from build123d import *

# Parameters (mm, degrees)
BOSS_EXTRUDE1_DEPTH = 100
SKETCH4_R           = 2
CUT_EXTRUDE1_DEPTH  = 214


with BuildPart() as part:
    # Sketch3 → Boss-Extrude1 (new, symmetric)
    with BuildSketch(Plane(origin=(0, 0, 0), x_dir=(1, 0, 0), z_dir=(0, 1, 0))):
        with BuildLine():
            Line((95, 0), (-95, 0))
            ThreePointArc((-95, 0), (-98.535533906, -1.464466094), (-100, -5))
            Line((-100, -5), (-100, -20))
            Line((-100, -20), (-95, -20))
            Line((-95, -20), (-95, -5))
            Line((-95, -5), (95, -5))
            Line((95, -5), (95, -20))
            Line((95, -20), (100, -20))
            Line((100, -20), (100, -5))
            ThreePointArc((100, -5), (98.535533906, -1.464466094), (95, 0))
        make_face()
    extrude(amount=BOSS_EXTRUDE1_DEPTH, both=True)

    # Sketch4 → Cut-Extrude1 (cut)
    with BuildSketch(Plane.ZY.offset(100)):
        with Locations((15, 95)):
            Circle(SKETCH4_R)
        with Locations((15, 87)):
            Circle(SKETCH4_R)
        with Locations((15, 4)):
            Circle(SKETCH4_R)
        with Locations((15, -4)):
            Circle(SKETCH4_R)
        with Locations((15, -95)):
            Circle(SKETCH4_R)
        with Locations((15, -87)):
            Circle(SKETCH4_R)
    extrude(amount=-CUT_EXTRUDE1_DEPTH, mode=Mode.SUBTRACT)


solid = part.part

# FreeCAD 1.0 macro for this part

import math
import FreeCAD as App
import Part
import Sketcher

doc = App.newDocument("Part")
body = doc.addObject("PartDesign::Body", "Body")

sketch1 = doc.addObject("Sketcher::SketchObject", "Sketch")
body.addObject(sketch1)
sketch1.AttachmentSupport = (doc.XZ_Plane, [""])
sketch1.MapMode = "FlatFace"
sketch1.addGeometry(Part.LineSegment(App.Vector(95, 0, 0), App.Vector(-95, 0, 0)), False)
sketch1.addGeometry(Part.ArcOfCircle(Part.Circle(App.Vector(-95, 5, 0), App.Vector(0, 0, 1), 5), math.radians(180), math.radians(270)), False)
sketch1.addGeometry(Part.LineSegment(App.Vector(-100, 5, 0), App.Vector(-100, 20, 0)), False)
sketch1.addGeometry(Part.LineSegment(App.Vector(-100, 20, 0), App.Vector(-95, 20, 0)), False)
sketch1.addGeometry(Part.LineSegment(App.Vector(-95, 20, 0), App.Vector(-95, 5, 0)), False)
sketch1.addGeometry(Part.LineSegment(App.Vector(-95, 5, 0), App.Vector(95, 5, 0)), False)
sketch1.addGeometry(Part.LineSegment(App.Vector(95, 5, 0), App.Vector(95, 20, 0)), False)
sketch1.addGeometry(Part.LineSegment(App.Vector(95, 20, 0), App.Vector(100, 20, 0)), False)
sketch1.addGeometry(Part.LineSegment(App.Vector(100, 20, 0), App.Vector(100, 5, 0)), False)
sketch1.addGeometry(Part.ArcOfCircle(Part.Circle(App.Vector(95, 5, 0), App.Vector(0, 0, 1), 5), math.radians(-90), math.radians(0)), False)
sketch1.addConstraint(Sketcher.Constraint("Tangent", 0, 2, 1, 2))
sketch1.addConstraint(Sketcher.Constraint("Tangent", 1, 1, 2, 1))
sketch1.addConstraint(Sketcher.Constraint("Coincident", 2, 2, 3, 1))
sketch1.addConstraint(Sketcher.Constraint("Coincident", 3, 2, 4, 1))
sketch1.addConstraint(Sketcher.Constraint("Coincident", 4, 2, 5, 1))
sketch1.addConstraint(Sketcher.Constraint("Coincident", 5, 2, 6, 1))
sketch1.addConstraint(Sketcher.Constraint("Coincident", 6, 2, 7, 1))
sketch1.addConstraint(Sketcher.Constraint("Coincident", 7, 2, 8, 1))
sketch1.addConstraint(Sketcher.Constraint("Tangent", 8, 2, 9, 2))
sketch1.addConstraint(Sketcher.Constraint("Tangent", 9, 1, 0, 1))
sketch1.addConstraint(Sketcher.Constraint("Horizontal", 0))
sketch1.addConstraint(Sketcher.Constraint("Vertical", 2))
sketch1.addConstraint(Sketcher.Constraint("Horizontal", 3))
sketch1.addConstraint(Sketcher.Constraint("Vertical", 4))
sketch1.addConstraint(Sketcher.Constraint("Horizontal", 5))
sketch1.addConstraint(Sketcher.Constraint("Vertical", 6))
sketch1.addConstraint(Sketcher.Constraint("Horizontal", 7))
sketch1.addConstraint(Sketcher.Constraint("Vertical", 8))
sketch1.addConstraint(Sketcher.Constraint("Coincident", 4, 2, 1, 3))
sketch1.addConstraint(Sketcher.Constraint("Coincident", 5, 2, 9, 3))
sketch1.addConstraint(Sketcher.Constraint("Symmetric", 0, 2, 9, 1, -1, 1))
sketch1.addConstraint(Sketcher.Constraint("Horizontal", 3, 2, 6, 2))
sketch1.addConstraint(Sketcher.Constraint("Radius", 1, 5.0))
sketch1.addConstraint(Sketcher.Constraint("DistanceX", 0, 2, 0, 1, 190.0))
sketch1.addConstraint(Sketcher.Constraint("DistanceY", 2, 1, 2, 2, 15.0))
pad1 = doc.addObject("PartDesign::Pad", "Pad")
body.addObject(pad1)
pad1.Profile = sketch1
pad1.Length = 200
pad1.Midplane = True

sketch2 = doc.addObject("Sketcher::SketchObject", "Sketch001")
body.addObject(sketch2)
sketch2.AttachmentSupport = (doc.YZ_Plane, [""])
sketch2.MapMode = "FlatFace"
sketch2.AttachmentOffset = App.Placement(App.Vector(0, 0, -100), App.Rotation())
sketch2.addGeometry(Part.Circle(App.Vector(95, 15, 0), App.Vector(0, 0, 1), 2), False)
sketch2.addGeometry(Part.Circle(App.Vector(87, 15, 0), App.Vector(0, 0, 1), 2), False)
sketch2.addGeometry(Part.Circle(App.Vector(4, 15, 0), App.Vector(0, 0, 1), 2), False)
sketch2.addGeometry(Part.Circle(App.Vector(-4, 15, 0), App.Vector(0, 0, 1), 2), False)
sketch2.addGeometry(Part.Circle(App.Vector(-95, 15, 0), App.Vector(0, 0, 1), 2), False)
sketch2.addGeometry(Part.Circle(App.Vector(-87, 15, 0), App.Vector(0, 0, 1), 2), False)
sketch2.addConstraint(Sketcher.Constraint("Equal", 0, 1))
sketch2.addConstraint(Sketcher.Constraint("Equal", 1, 2))
sketch2.addConstraint(Sketcher.Constraint("Equal", 2, 3))
sketch2.addConstraint(Sketcher.Constraint("Equal", 3, 4))
sketch2.addConstraint(Sketcher.Constraint("Equal", 4, 5))
sketch2.addConstraint(Sketcher.Constraint("Symmetric", 2, 3, 3, 3, -2))
sketch2.addConstraint(Sketcher.Constraint("Symmetric", 0, 3, 4, 3, -2))
sketch2.addConstraint(Sketcher.Constraint("Symmetric", 1, 3, 5, 3, -2))
sketch2.addConstraint(Sketcher.Constraint("Horizontal", 0, 3, 1, 3))
sketch2.addConstraint(Sketcher.Constraint("Horizontal", 1, 3, 2, 3))
sketch2.addConstraint(Sketcher.Constraint("Diameter", 0, 4.0))
sketch2.addConstraint(Sketcher.Constraint("DistanceX", -1, 1, 0, 3, 95.0))
sketch2.addConstraint(Sketcher.Constraint("DistanceY", -1, 1, 0, 3, 15.0))
sketch2.addConstraint(Sketcher.Constraint("DistanceX", -1, 1, 1, 3, 87.0))
sketch2.addConstraint(Sketcher.Constraint("DistanceX", -1, 1, 2, 3, 4.0))
pocket1 = doc.addObject("PartDesign::Pocket", "Pocket")
body.addObject(pocket1)
pocket1.Profile = sketch2
pocket1.Length = 214
pocket1.Reversed = True

doc.recompute()
